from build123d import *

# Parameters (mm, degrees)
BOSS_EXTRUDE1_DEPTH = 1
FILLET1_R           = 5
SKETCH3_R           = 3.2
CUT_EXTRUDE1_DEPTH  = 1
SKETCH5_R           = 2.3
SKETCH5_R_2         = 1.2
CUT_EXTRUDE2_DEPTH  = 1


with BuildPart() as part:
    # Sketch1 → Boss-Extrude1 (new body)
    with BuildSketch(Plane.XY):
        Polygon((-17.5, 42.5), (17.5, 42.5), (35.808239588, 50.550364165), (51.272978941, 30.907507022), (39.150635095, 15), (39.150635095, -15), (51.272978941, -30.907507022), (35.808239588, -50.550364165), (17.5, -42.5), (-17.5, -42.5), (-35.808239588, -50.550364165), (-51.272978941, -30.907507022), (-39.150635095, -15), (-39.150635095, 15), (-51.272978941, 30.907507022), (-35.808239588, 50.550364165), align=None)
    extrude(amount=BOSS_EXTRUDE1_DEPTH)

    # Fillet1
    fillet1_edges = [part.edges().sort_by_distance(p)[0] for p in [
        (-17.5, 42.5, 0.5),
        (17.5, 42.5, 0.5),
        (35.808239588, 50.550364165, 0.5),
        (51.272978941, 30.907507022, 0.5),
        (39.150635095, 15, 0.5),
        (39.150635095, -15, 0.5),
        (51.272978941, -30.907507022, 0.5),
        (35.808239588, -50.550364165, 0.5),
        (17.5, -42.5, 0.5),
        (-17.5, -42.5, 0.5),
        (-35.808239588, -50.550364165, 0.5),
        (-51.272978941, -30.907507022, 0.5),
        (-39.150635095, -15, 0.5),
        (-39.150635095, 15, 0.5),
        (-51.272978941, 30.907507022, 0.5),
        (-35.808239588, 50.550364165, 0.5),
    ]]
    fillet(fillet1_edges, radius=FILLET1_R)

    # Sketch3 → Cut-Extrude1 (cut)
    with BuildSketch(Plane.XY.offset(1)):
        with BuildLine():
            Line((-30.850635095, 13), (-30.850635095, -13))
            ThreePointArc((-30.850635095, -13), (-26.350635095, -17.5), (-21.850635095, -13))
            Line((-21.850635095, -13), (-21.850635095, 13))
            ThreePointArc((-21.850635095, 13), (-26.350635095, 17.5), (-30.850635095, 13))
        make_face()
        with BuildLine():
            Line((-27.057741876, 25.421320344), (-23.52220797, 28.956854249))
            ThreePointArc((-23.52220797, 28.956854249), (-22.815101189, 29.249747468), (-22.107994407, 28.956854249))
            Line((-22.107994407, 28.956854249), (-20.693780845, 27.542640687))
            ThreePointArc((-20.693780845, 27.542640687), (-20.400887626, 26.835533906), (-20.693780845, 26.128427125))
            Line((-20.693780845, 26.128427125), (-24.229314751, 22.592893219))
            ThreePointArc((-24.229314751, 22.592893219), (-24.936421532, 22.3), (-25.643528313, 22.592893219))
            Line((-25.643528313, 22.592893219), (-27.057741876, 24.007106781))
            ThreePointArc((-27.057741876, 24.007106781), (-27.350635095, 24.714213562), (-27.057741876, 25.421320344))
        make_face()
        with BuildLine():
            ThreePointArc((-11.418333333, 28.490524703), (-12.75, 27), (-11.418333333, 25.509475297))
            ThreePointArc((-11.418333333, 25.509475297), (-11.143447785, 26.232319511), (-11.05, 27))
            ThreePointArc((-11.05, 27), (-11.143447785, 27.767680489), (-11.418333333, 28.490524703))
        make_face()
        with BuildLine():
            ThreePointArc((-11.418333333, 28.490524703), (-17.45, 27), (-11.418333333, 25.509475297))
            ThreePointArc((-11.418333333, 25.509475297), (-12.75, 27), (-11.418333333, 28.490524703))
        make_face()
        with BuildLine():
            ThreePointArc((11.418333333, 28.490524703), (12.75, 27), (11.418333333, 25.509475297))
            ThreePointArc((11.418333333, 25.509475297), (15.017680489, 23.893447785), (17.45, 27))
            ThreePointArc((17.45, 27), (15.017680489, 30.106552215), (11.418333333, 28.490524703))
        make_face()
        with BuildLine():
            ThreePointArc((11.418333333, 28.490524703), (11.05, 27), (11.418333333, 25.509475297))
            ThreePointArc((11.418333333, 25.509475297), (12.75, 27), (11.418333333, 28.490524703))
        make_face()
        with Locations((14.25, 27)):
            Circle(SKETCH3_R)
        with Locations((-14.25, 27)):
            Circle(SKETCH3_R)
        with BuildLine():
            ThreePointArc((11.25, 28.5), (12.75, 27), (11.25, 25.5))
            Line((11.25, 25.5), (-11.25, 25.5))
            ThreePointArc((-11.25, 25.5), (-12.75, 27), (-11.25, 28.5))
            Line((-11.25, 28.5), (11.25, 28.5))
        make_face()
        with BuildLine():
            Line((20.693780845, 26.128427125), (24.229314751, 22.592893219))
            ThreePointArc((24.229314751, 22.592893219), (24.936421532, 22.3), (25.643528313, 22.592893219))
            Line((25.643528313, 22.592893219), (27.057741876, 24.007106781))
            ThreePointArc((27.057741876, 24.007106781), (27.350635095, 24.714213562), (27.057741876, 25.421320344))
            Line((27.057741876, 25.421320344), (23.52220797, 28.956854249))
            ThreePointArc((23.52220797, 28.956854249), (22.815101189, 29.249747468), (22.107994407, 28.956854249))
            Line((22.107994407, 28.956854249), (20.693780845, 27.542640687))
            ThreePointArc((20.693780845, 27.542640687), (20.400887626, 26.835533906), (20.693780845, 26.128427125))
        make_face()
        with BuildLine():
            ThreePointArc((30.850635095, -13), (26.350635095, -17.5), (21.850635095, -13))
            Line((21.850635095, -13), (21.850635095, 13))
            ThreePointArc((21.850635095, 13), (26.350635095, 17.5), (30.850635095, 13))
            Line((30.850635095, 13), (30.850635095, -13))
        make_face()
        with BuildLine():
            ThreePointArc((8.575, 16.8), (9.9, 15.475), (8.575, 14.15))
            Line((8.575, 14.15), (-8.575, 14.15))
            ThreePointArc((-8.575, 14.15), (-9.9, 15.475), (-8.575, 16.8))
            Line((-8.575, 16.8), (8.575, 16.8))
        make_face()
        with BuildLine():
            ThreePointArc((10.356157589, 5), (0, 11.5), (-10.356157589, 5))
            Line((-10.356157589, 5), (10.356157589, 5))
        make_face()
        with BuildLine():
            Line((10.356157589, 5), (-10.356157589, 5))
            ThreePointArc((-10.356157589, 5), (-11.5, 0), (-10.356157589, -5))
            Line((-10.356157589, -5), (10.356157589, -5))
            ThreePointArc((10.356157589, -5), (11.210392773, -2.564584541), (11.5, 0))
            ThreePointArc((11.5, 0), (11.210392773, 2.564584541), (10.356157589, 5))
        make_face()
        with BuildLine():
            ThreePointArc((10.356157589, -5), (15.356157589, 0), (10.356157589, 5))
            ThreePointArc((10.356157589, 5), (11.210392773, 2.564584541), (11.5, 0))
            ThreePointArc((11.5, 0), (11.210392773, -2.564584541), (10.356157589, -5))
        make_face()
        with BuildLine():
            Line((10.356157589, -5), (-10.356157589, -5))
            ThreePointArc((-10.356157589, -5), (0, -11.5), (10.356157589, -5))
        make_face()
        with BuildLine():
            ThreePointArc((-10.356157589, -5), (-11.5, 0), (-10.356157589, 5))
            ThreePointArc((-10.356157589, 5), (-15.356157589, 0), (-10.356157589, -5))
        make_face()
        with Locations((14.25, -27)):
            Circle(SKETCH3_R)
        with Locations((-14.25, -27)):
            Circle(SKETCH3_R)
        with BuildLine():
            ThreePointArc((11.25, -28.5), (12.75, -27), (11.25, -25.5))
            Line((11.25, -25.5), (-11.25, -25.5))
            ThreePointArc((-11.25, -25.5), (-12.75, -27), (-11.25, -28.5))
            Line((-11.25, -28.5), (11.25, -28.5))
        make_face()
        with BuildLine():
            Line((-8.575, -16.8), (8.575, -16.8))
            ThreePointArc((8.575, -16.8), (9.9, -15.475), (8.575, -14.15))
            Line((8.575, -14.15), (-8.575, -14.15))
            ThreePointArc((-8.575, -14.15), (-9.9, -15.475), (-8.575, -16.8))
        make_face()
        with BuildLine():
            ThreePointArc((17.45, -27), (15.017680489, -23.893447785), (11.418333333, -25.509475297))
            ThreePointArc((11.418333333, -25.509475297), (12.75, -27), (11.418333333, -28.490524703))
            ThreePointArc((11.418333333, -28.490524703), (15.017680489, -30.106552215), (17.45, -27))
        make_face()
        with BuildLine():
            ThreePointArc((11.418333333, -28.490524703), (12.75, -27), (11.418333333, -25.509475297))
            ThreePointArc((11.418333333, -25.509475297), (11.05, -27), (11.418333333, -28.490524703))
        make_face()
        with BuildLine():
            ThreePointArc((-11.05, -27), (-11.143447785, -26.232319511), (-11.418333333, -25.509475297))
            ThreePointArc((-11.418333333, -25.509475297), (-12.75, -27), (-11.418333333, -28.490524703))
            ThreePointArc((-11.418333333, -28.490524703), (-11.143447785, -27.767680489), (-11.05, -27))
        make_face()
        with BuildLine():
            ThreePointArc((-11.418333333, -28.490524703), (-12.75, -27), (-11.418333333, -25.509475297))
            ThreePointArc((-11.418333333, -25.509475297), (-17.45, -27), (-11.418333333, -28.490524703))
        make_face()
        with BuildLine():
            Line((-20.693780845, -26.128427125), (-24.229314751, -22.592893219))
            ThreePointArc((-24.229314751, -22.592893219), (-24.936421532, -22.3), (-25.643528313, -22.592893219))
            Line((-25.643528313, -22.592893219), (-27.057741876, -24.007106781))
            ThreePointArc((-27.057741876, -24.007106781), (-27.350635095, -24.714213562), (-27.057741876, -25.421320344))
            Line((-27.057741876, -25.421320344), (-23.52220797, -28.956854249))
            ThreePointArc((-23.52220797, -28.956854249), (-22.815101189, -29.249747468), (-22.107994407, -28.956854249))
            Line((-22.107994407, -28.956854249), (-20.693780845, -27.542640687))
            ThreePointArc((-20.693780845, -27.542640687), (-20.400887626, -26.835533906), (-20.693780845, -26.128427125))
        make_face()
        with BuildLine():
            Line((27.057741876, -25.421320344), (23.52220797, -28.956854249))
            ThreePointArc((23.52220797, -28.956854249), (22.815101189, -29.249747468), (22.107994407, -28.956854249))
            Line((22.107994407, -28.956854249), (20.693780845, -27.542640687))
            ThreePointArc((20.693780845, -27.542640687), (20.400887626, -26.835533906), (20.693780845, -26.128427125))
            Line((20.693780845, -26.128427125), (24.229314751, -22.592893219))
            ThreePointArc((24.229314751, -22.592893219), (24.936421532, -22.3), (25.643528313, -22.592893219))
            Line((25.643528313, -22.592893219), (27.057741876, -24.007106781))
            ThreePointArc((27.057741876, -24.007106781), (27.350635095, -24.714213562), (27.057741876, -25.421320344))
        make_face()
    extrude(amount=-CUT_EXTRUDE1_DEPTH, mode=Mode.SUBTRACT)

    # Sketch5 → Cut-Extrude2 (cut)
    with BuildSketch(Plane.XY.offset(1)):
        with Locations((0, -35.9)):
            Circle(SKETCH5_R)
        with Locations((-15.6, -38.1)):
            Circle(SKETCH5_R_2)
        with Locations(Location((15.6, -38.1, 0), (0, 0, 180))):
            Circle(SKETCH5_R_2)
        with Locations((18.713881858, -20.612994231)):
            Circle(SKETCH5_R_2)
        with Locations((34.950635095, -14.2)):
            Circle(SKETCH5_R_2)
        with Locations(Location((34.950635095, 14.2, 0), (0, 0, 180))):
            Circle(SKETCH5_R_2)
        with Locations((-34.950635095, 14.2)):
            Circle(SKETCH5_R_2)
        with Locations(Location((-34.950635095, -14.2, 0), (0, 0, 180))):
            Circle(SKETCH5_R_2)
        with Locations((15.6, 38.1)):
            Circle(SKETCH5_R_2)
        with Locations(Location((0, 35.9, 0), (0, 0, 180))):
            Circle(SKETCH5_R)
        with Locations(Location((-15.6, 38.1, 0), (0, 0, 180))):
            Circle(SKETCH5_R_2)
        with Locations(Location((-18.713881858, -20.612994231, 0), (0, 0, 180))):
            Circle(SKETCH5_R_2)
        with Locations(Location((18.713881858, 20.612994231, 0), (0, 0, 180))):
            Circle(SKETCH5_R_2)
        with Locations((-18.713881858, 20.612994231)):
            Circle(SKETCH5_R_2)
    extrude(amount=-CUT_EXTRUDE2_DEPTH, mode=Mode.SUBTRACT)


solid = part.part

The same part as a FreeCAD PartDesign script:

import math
import FreeCAD as App
import Part
import Sketcher
from FreeCAD import Vector
Q = App.Units.Quantity


def edges_at(feature, points):
    """Names of the edges that pass closest to the given points."""
    edges = feature.Shape.Edges
    near = lambda p: min(range(len(edges)), key=lambda i: edges[i].distToShape(Part.Vertex(*p))[0])
    return sorted({f"Edge{near(p) + 1}" for p in points})

doc = App.newDocument("Part")
body = doc.addObject("PartDesign::Body", "Body")

# Sketch on XY plane
sketch1 = doc.addObject("Sketcher::SketchObject", "Sketch")
body.addObject(sketch1)
sketch1.AttachmentSupport = (doc.XY_Plane, [""])
sketch1.MapMode = "FlatFace"
sketch1.addGeometry(Part.LineSegment(Vector(17.5, 42.5, 0), Vector(-17.5, 42.5, 0)), False)
sketch1.addGeometry(Part.LineSegment(Vector(-17.5, 42.5, 0), Vector(-35.80824, 50.550364, 0)), False)
sketch1.addGeometry(Part.LineSegment(Vector(-35.80824, 50.550364, 0), Vector(-51.272979, 30.907507, 0)), False)
sketch1.addGeometry(Part.LineSegment(Vector(-51.272979, 30.907507, 0), Vector(-39.150635, 15, 0)), False)
sketch1.addGeometry(Part.LineSegment(Vector(-39.150635, 15, 0), Vector(-39.150635, -15, 0)), False)
sketch1.addGeometry(Part.LineSegment(Vector(-39.150635, -15, 0), Vector(-51.272979, -30.907507, 0)), False)
sketch1.addGeometry(Part.LineSegment(Vector(-51.272979, -30.907507, 0), Vector(-35.80824, -50.550364, 0)), False)
sketch1.addGeometry(Part.LineSegment(Vector(-35.80824, -50.550364, 0), Vector(-17.5, -42.5, 0)), False)
sketch1.addGeometry(Part.LineSegment(Vector(-17.5, -42.5, 0), Vector(17.5, -42.5, 0)), False)
sketch1.addGeometry(Part.LineSegment(Vector(17.5, -42.5, 0), Vector(35.80824, -50.550364, 0)), False)
sketch1.addGeometry(Part.LineSegment(Vector(35.80824, -50.550364, 0), Vector(51.272979, -30.907507, 0)), False)
sketch1.addGeometry(Part.LineSegment(Vector(51.272979, -30.907507, 0), Vector(39.150635, -15, 0)), False)
sketch1.addGeometry(Part.LineSegment(Vector(39.150635, -15, 0), Vector(39.150635, 15, 0)), False)
sketch1.addGeometry(Part.LineSegment(Vector(39.150635, 15, 0), Vector(51.272979, 30.907507, 0)), False)
sketch1.addGeometry(Part.LineSegment(Vector(51.272979, 30.907507, 0), Vector(35.80824, 50.550364, 0)), False)
sketch1.addGeometry(Part.LineSegment(Vector(35.80824, 50.550364, 0), Vector(17.5, 42.5, 0)), False)
sketch1.addConstraint(Sketcher.Constraint("Coincident", 0, 2, 1, 1))
sketch1.addConstraint(Sketcher.Constraint("Coincident", 1, 2, 2, 1))
sketch1.addConstraint(Sketcher.Constraint("Coincident", 2, 2, 3, 1))
sketch1.addConstraint(Sketcher.Constraint("Coincident", 3, 2, 4, 1))
sketch1.addConstraint(Sketcher.Constraint("Coincident", 4, 2, 5, 1))
sketch1.addConstraint(Sketcher.Constraint("Coincident", 5, 2, 6, 1))
sketch1.addConstraint(Sketcher.Constraint("Coincident", 6, 2, 7, 1))
sketch1.addConstraint(Sketcher.Constraint("Coincident", 7, 2, 8, 1))
sketch1.addConstraint(Sketcher.Constraint("Coincident", 8, 2, 9, 1))
sketch1.addConstraint(Sketcher.Constraint("Coincident", 9, 2, 10, 1))
sketch1.addConstraint(Sketcher.Constraint("Coincident", 10, 2, 11, 1))
sketch1.addConstraint(Sketcher.Constraint("Coincident", 11, 2, 12, 1))
sketch1.addConstraint(Sketcher.Constraint("Coincident", 12, 2, 13, 1))
sketch1.addConstraint(Sketcher.Constraint("Coincident", 13, 2, 14, 1))
sketch1.addConstraint(Sketcher.Constraint("Coincident", 14, 2, 15, 1))
sketch1.addConstraint(Sketcher.Constraint("Coincident", 15, 2, 0, 1))
sketch1.addConstraint(Sketcher.Constraint("Horizontal", 0))
sketch1.addConstraint(Sketcher.Constraint("Vertical", 4))
sketch1.addConstraint(Sketcher.Constraint("Horizontal", 8))
sketch1.addConstraint(Sketcher.Constraint("Vertical", 12))
sketch1.addConstraint(Sketcher.Constraint("Symmetric", 0, 2, 8, 2, -1, 1))
sketch1.addConstraint(Sketcher.Constraint("Symmetric", 1, 2, 9, 2, -1, 1))
sketch1.addConstraint(Sketcher.Constraint("Symmetric", 2, 2, 10, 2, -1, 1))
sketch1.addConstraint(Sketcher.Constraint("Symmetric", 3, 2, 11, 2, -1, 1))
sketch1.addConstraint(Sketcher.Constraint("Symmetric", 5, 2, 13, 2, -1, 1))
sketch1.addConstraint(Sketcher.Constraint("Symmetric", 6, 2, 14, 2, -1, 1))
sketch1.addConstraint(Sketcher.Constraint("Symmetric", 6, 2, 9, 2, -2))
sketch1.addConstraint(Sketcher.Constraint("Symmetric", 5, 2, 10, 2, -2))
sketch1.addConstraint(Sketcher.Constraint("Parallel", 5, 13))
sketch1.addConstraint(Sketcher.Constraint("Parallel", 7, 15))
sketch1.addConstraint(Sketcher.Constraint("Horizontal", 4, 2, 11, 2))
sketch1.addConstraint(Sketcher.Constraint("Vertical", 0, 2, 7, 2))
sketch1.addConstraint(Sketcher.Constraint("Equal", 1, 3))
sketch1.addConstraint(Sketcher.Constraint("DistanceX", 0, 2, 0, 1, Q("35 mm")))
sketch1.addConstraint(Sketcher.Constraint("DistanceY", 4, 2, 4, 1, Q("30 mm")))
sketch1.addConstraint(Sketcher.Constraint("Distance", 1, Q("20 mm")))
sketch1.addConstraint(Sketcher.Constraint("Distance", 2, Q("25 mm")))
sketch1.addConstraint(Sketcher.Constraint("DistanceY", -1, 1, 0, 2, Q("42.5 mm")))
sketch1.addConstraint(Sketcher.Constraint("DistanceX", 1, 2, -1, 1, Q("35.80824 mm")))
sketch1.addConstraint(Sketcher.Constraint("DistanceX", 2, 2, -1, 1, Q("51.272979 mm")))
pad1 = doc.addObject("PartDesign::Pad", "Pad")
body.addObject(pad1)
pad1.Profile = sketch1
pad1.Length = 1
doc.recompute()

fillet = doc.addObject("PartDesign::Fillet", "Fillet")
body.addObject(fillet)
fillet.Base = (pad1, edges_at(pad1, [
    (-17.5, 42.5, 0.5),
    (17.5, 42.5, 0.5),
    (35.808, 50.55, 0.5),
    (51.273, 30.908, 0.5),
    (39.151, 15, 0.5),
    (39.151, -15, 0.5),
    (51.273, -30.908, 0.5),
    (35.808, -50.55, 0.5),
    (17.5, -42.5, 0.5),
    (-17.5, -42.5, 0.5),
    (-35.808, -50.55, 0.5),
    (-51.273, -30.908, 0.5),
    (-39.151, -15, 0.5),
    (-39.151, 15, 0.5),
    (-51.273, 30.908, 0.5),
    (-35.808, 50.55, 0.5),
]))
fillet.Radius = 5

# Sketch on XY plane
sketch2 = doc.addObject("Sketcher::SketchObject", "Sketch001")
body.addObject(sketch2)
sketch2.AttachmentSupport = (doc.XY_Plane, [""])
sketch2.MapMode = "FlatFace"
sketch2.AttachmentOffset = App.Placement(Vector(0, 0, 1), App.Rotation())
sketch2.addGeometry(Part.LineSegment(Vector(-30.850635, 13, 0), Vector(-30.850635, -13, 0)), False)
sketch2.addGeometry(Part.ArcOfCircle(Part.Circle(Vector(-26.350635, -13, 0), Vector(0, 0, 1), 4.5), math.radians(180), math.radians(360)), False)
sketch2.addGeometry(Part.LineSegment(Vector(-21.850635, -13, 0), Vector(-21.850635, 13, 0)), False)
sketch2.addGeometry(Part.ArcOfCircle(Part.Circle(Vector(-26.350635, 13, 0), Vector(0, 0, 1), 4.5), math.radians(0), math.radians(180)), False)
sketch2.addGeometry(Part.LineSegment(Vector(-23.522208, 28.956854, 0), Vector(-27.057742, 25.42132, 0)), False)
sketch2.addGeometry(Part.ArcOfCircle(Part.Circle(Vector(-26.350635, 24.714214, 0), Vector(0, 0, 1), 1), math.radians(135), math.radians(225)), False)
sketch2.addGeometry(Part.LineSegment(Vector(-27.057742, 24.007107, 0), Vector(-25.643528, 22.592893, 0)), False)
sketch2.addGeometry(Part.ArcOfCircle(Part.Circle(Vector(-24.936422, 23.3, 0), Vector(0, 0, 1), 1), math.radians(-135), math.radians(-45)), False)
sketch2.addGeometry(Part.LineSegment(Vector(-24.229315, 22.592893, 0), Vector(-20.693781, 26.128427, 0)), False)
sketch2.addGeometry(Part.ArcOfCircle(Part.Circle(Vector(-21.400888, 26.835534, 0), Vector(0, 0, 1), 1), math.radians(-45), math.radians(45)), False)
sketch2.addGeometry(Part.LineSegment(Vector(-20.693781, 27.542641, 0), Vector(-22.107994, 28.956854, 0)), False)
sketch2.addGeometry(Part.ArcOfCircle(Part.Circle(Vector(-22.815101, 28.249747, 0), Vector(0, 0, 1), 1), math.radians(45), math.radians(135)), False)
sketch2.addGeometry(Part.ArcOfCircle(Part.Circle(Vector(-14.25, 27, 0), Vector(0, 0, 1), 3.2), math.radians(27.761295), math.radians(332.238705)), False)
sketch2.addGeometry(Part.ArcOfCircle(Part.Circle(Vector(-11.25, 27, 0), Vector(0, 0, 1), 1.5), math.radians(-96.443433), math.radians(-90)), False)
sketch2.addGeometry(Part.LineSegment(Vector(-11.25, 25.5, 0), Vector(11.25, 25.5, 0)), False)
sketch2.addGeometry(Part.ArcOfCircle(Part.Circle(Vector(11.25, 27, 0), Vector(0, 0, 1), 1.5), math.radians(-90), math.radians(-83.556567)), False)
sketch2.addGeometry(Part.ArcOfCircle(Part.Circle(Vector(14.25, 27, 0), Vector(0, 0, 1), 3.2), math.radians(-152.238705), math.radians(0)), False)
sketch2.addGeometry(Part.ArcOfCircle(Part.Circle(Vector(14.25, 27, 0), Vector(0, 0, 1), 3.2), math.radians(0), math.radians(152.238705)), False)
sketch2.addGeometry(Part.ArcOfCircle(Part.Circle(Vector(11.25, 27, 0), Vector(0, 0, 1), 1.5), math.radians(83.556567), math.radians(90)), False)
sketch2.addGeometry(Part.LineSegment(Vector(11.25, 28.5, 0), Vector(-11.25, 28.5, 0)), False)
sketch2.addGeometry(Part.ArcOfCircle(Part.Circle(Vector(-11.25, 27, 0), Vector(0, 0, 1), 1.5), math.radians(90), math.radians(96.443433)), False)
sketch2.addGeometry(Part.LineSegment(Vector(20.693781, 26.128427, 0), Vector(24.229315, 22.592893, 0)), False)
sketch2.addGeometry(Part.ArcOfCircle(Part.Circle(Vector(24.936422, 23.3, 0), Vector(0, 0, 1), 1), math.radians(-135), math.radians(-45)), False)
sketch2.addGeometry(Part.LineSegment(Vector(25.643528, 22.592893, 0), Vector(27.057742, 24.007107, 0)), False)
sketch2.addGeometry(Part.ArcOfCircle(Part.Circle(Vector(26.350635, 24.714214, 0), Vector(0, 0, 1), 1), math.radians(-45), math.radians(45)), False)
sketch2.addGeometry(Part.LineSegment(Vector(27.057742, 25.42132, 0), Vector(23.522208, 28.956854, 0)), False)
sketch2.addGeometry(Part.ArcOfCircle(Part.Circle(Vector(22.815101, 28.249747, 0), Vector(0, 0, 1), 1), math.radians(45), math.radians(135)), False)
sketch2.addGeometry(Part.LineSegment(Vector(22.107994, 28.956854, 0), Vector(20.693781, 27.542641, 0)), False)
sketch2.addGeometry(Part.ArcOfCircle(Part.Circle(Vector(21.400888, 26.835534, 0), Vector(0, 0, 1), 1), math.radians(135), math.radians(225)), False)
sketch2.addGeometry(Part.ArcOfCircle(Part.Circle(Vector(26.350635, -13, 0), Vector(0, 0, 1), 4.5), math.radians(180), math.radians(360)), False)
sketch2.addGeometry(Part.LineSegment(Vector(30.850635, -13, 0), Vector(30.850635, 13, 0)), False)
sketch2.addGeometry(Part.ArcOfCircle(Part.Circle(Vector(26.350635, 13, 0), Vector(0, 0, 1), 4.5), math.radians(0), math.radians(180)), False)
sketch2.addGeometry(Part.LineSegment(Vector(21.850635, 13, 0), Vector(21.850635, -13, 0)), False)
sketch2.addGeometry(Part.ArcOfCircle(Part.Circle(Vector(8.575, 15.475, 0), Vector(0, 0, 1), 1.325), math.radians(-90), math.radians(90)), False)
sketch2.addGeometry(Part.LineSegment(Vector(8.575, 16.8, 0), Vector(-8.575, 16.8, 0)), False)
sketch2.addGeometry(Part.ArcOfCircle(Part.Circle(Vector(-8.575, 15.475, 0), Vector(0, 0, 1), 1.325), math.radians(90), math.radians(270)), False)
sketch2.addGeometry(Part.LineSegment(Vector(-8.575, 14.15, 0), Vector(8.575, 14.15, 0)), False)
sketch2.addGeometry(Part.ArcOfCircle(Part.Circle(Vector(0, 0, 0), Vector(0, 0, 1), 11.5), math.radians(25.771462), math.radians(154.228538)), False)
sketch2.addGeometry(Part.ArcOfCircle(Part.Circle(Vector(-10.356158, 0, 0), Vector(0, 0, 1), 5), math.radians(90), math.radians(270)), False)
sketch2.addGeometry(Part.ArcOfCircle(Part.Circle(Vector(0, 0, 0), Vector(0, 0, 1), 11.5), math.radians(-154.228538), math.radians(-25.771462)), False)
sketch2.addGeometry(Part.ArcOfCircle(Part.Circle(Vector(10.356158, 0, 0), Vector(0, 0, 1), 5), math.radians(-90), math.radians(90)), False)
sketch2.addGeometry(Part.ArcOfCircle(Part.Circle(Vector(14.25, -27, 0), Vector(0, 0, 1), 3.2), math.radians(-152.238705), math.radians(152.238705)), False)
sketch2.addGeometry(Part.ArcOfCircle(Part.Circle(Vector(11.25, -27, 0), Vector(0, 0, 1), 1.5), math.radians(83.556567), math.radians(90)), False)
sketch2.addGeometry(Part.LineSegment(Vector(11.25, -25.5, 0), Vector(-11.25, -25.5, 0)), False)
sketch2.addGeometry(Part.ArcOfCircle(Part.Circle(Vector(-11.25, -27, 0), Vector(0, 0, 1), 1.5), math.radians(90), math.radians(96.443433)), False)
sketch2.addGeometry(Part.ArcOfCircle(Part.Circle(Vector(-14.25, -27, 0), Vector(0, 0, 1), 3.2), math.radians(27.761295), math.radians(332.238705)), False)
sketch2.addGeometry(Part.ArcOfCircle(Part.Circle(Vector(-11.25, -27, 0), Vector(0, 0, 1), 1.5), math.radians(-96.443433), math.radians(-90)), False)
sketch2.addGeometry(Part.LineSegment(Vector(-11.25, -28.5, 0), Vector(11.25, -28.5, 0)), False)
sketch2.addGeometry(Part.ArcOfCircle(Part.Circle(Vector(11.25, -27, 0), Vector(0, 0, 1), 1.5), math.radians(-90), math.radians(-83.556567)), False)
sketch2.addGeometry(Part.LineSegment(Vector(-8.575, -16.8, 0), Vector(8.575, -16.8, 0)), False)
sketch2.addGeometry(Part.ArcOfCircle(Part.Circle(Vector(8.575, -15.475, 0), Vector(0, 0, 1), 1.325), math.radians(-90), math.radians(90)), False)
sketch2.addGeometry(Part.LineSegment(Vector(8.575, -14.15, 0), Vector(-8.575, -14.15, 0)), False)
sketch2.addGeometry(Part.ArcOfCircle(Part.Circle(Vector(-8.575, -15.475, 0), Vector(0, 0, 1), 1.325), math.radians(90), math.radians(270)), False)
sketch2.addGeometry(Part.LineSegment(Vector(-20.693781, -26.128427, 0), Vector(-24.229315, -22.592893, 0)), False)
sketch2.addGeometry(Part.ArcOfCircle(Part.Circle(Vector(-24.936422, -23.3, 0), Vector(0, 0, 1), 1), math.radians(45), math.radians(135)), False)
sketch2.addGeometry(Part.LineSegment(Vector(-25.643528, -22.592893, 0), Vector(-27.057742, -24.007107, 0)), False)
sketch2.addGeometry(Part.ArcOfCircle(Part.Circle(Vector(-26.350635, -24.714214, 0), Vector(0, 0, 1), 1), math.radians(135), math.radians(225)), False)
sketch2.addGeometry(Part.LineSegment(Vector(-27.057742, -25.42132, 0), Vector(-23.522208, -28.956854, 0)), False)
sketch2.addGeometry(Part.ArcOfCircle(Part.Circle(Vector(-22.815101, -28.249747, 0), Vector(0, 0, 1), 1), math.radians(-135), math.radians(-45)), False)
sketch2.addGeometry(Part.LineSegment(Vector(-22.107994, -28.956854, 0), Vector(-20.693781, -27.542641, 0)), False)
sketch2.addGeometry(Part.ArcOfCircle(Part.Circle(Vector(-21.400888, -26.835534, 0), Vector(0, 0, 1), 1), math.radians(-45), math.radians(45)), False)
sketch2.addGeometry(Part.LineSegment(Vector(23.522208, -28.956854, 0), Vector(27.057742, -25.42132, 0)), False)
sketch2.addGeometry(Part.ArcOfCircle(Part.Circle(Vector(26.350635, -24.714214, 0), Vector(0, 0, 1), 1), math.radians(-45), math.radians(45)), False)
sketch2.addGeometry(Part.LineSegment(Vector(27.057742, -24.007107, 0), Vector(25.643528, -22.592893, 0)), False)
sketch2.addGeometry(Part.ArcOfCircle(Part.Circle(Vector(24.936422, -23.3, 0), Vector(0, 0, 1), 1), math.radians(45), math.radians(135)), False)
sketch2.addGeometry(Part.LineSegment(Vector(24.229315, -22.592893, 0), Vector(20.693781, -26.128427, 0)), False)
sketch2.addGeometry(Part.ArcOfCircle(Part.Circle(Vector(21.400888, -26.835534, 0), Vector(0, 0, 1), 1), math.radians(135), math.radians(225)), False)
sketch2.addGeometry(Part.LineSegment(Vector(20.693781, -27.542641, 0), Vector(22.107994, -28.956854, 0)), False)
sketch2.addGeometry(Part.ArcOfCircle(Part.Circle(Vector(22.815101, -28.249747, 0), Vector(0, 0, 1), 1), math.radians(-135), math.radians(-45)), False)
sketch2.addConstraint(Sketcher.Constraint("Tangent", 0, 2, 1, 1))
sketch2.addConstraint(Sketcher.Constraint("Tangent", 1, 2, 2, 1))
sketch2.addConstraint(Sketcher.Constraint("Tangent", 2, 2, 3, 1))
sketch2.addConstraint(Sketcher.Constraint("Tangent", 3, 2, 0, 1))
sketch2.addConstraint(Sketcher.Constraint("Tangent", 4, 2, 5, 1))
sketch2.addConstraint(Sketcher.Constraint("Tangent", 5, 2, 6, 1))
sketch2.addConstraint(Sketcher.Constraint("Tangent", 6, 2, 7, 1))
sketch2.addConstraint(Sketcher.Constraint("Tangent", 7, 2, 8, 1))
sketch2.addConstraint(Sketcher.Constraint("Tangent", 8, 2, 9, 1))
sketch2.addConstraint(Sketcher.Constraint("Tangent", 9, 2, 10, 1))
sketch2.addConstraint(Sketcher.Constraint("Tangent", 10, 2, 11, 1))
sketch2.addConstraint(Sketcher.Constraint("Tangent", 11, 2, 4, 1))
sketch2.addConstraint(Sketcher.Constraint("Coincident", 12, 2, 13, 1))
sketch2.addConstraint(Sketcher.Constraint("Tangent", 13, 2, 14, 1))
sketch2.addConstraint(Sketcher.Constraint("Tangent", 14, 2, 15, 1))
sketch2.addConstraint(Sketcher.Constraint("Coincident", 15, 2, 16, 1))
sketch2.addConstraint(Sketcher.Constraint("Tangent", 16, 2, 17, 1))
sketch2.addConstraint(Sketcher.Constraint("Coincident", 17, 2, 18, 1))
sketch2.addConstraint(Sketcher.Constraint("Tangent", 18, 2, 19, 1))
sketch2.addConstraint(Sketcher.Constraint("Tangent", 19, 2, 20, 1))
sketch2.addConstraint(Sketcher.Constraint("Coincident", 20, 2, 12, 1))
sketch2.addConstraint(Sketcher.Constraint("Tangent", 21, 2, 22, 1))
sketch2.addConstraint(Sketcher.Constraint("Tangent", 22, 2, 23, 1))
sketch2.addConstraint(Sketcher.Constraint("Tangent", 23, 2, 24, 1))
sketch2.addConstraint(Sketcher.Constraint("Tangent", 24, 2, 25, 1))
sketch2.addConstraint(Sketcher.Constraint("Tangent", 25, 2, 26, 1))
sketch2.addConstraint(Sketcher.Constraint("Tangent", 26, 2, 27, 1))
sketch2.addConstraint(Sketcher.Constraint("Tangent", 27, 2, 28, 1))
sketch2.addConstraint(Sketcher.Constraint("Tangent", 28, 2, 21, 1))
sketch2.addConstraint(Sketcher.Constraint("Tangent", 29, 2, 30, 1))
sketch2.addConstraint(Sketcher.Constraint("Tangent", 30, 2, 31, 1))
sketch2.addConstraint(Sketcher.Constraint("Tangent", 31, 2, 32, 1))
sketch2.addConstraint(Sketcher.Constraint("Tangent", 32, 2, 29, 1))
sketch2.addConstraint(Sketcher.Constraint("Tangent", 33, 2, 34, 1))
sketch2.addConstraint(Sketcher.Constraint("Tangent", 34, 2, 35, 1))
sketch2.addConstraint(Sketcher.Constraint("Tangent", 35, 2, 36, 1))
sketch2.addConstraint(Sketcher.Constraint("Tangent", 36, 2, 33, 1))
sketch2.addConstraint(Sketcher.Constraint("Coincident", 37, 2, 38, 1))
sketch2.addConstraint(Sketcher.Constraint("Coincident", 38, 2, 39, 1))
sketch2.addConstraint(Sketcher.Constraint("Coincident", 39, 2, 40, 1))
sketch2.addConstraint(Sketcher.Constraint("Coincident", 40, 2, 37, 1))
sketch2.addConstraint(Sketcher.Constraint("Coincident", 41, 2, 42, 1))
sketch2.addConstraint(Sketcher.Constraint("Tangent", 42, 2, 43, 1))
sketch2.addConstraint(Sketcher.Constraint("Tangent", 43, 2, 44, 1))
sketch2.addConstraint(Sketcher.Constraint("Coincident", 44, 2, 45, 1))
sketch2.addConstraint(Sketcher.Constraint("Coincident", 45, 2, 46, 1))
sketch2.addConstraint(Sketcher.Constraint("Tangent", 46, 2, 47, 1))
sketch2.addConstraint(Sketcher.Constraint("Tangent", 47, 2, 48, 1))
sketch2.addConstraint(Sketcher.Constraint("Coincident", 48, 2, 41, 1))
sketch2.addConstraint(Sketcher.Constraint("Tangent", 49, 2, 50, 1))
sketch2.addConstraint(Sketcher.Constraint("Tangent", 50, 2, 51, 1))
sketch2.addConstraint(Sketcher.Constraint("Tangent", 51, 2, 52, 1))
sketch2.addConstraint(Sketcher.Constraint("Tangent", 52, 2, 49, 1))
sketch2.addConstraint(Sketcher.Constraint("Tangent", 53, 2, 54, 1))
sketch2.addConstraint(Sketcher.Constraint("Tangent", 54, 2, 55, 1))
sketch2.addConstraint(Sketcher.Constraint("Tangent", 55, 2, 56, 1))
sketch2.addConstraint(Sketcher.Constraint("Tangent", 56, 2, 57, 1))
sketch2.addConstraint(Sketcher.Constraint("Tangent", 57, 2, 58, 1))
sketch2.addConstraint(Sketcher.Constraint("Tangent", 58, 2, 59, 1))
sketch2.addConstraint(Sketcher.Constraint("Tangent", 59, 2, 60, 1))
sketch2.addConstraint(Sketcher.Constraint("Tangent", 60, 2, 53, 1))
sketch2.addConstraint(Sketcher.Constraint("Tangent", 61, 2, 62, 1))
sketch2.addConstraint(Sketcher.Constraint("Tangent", 62, 2, 63, 1))
sketch2.addConstraint(Sketcher.Constraint("Tangent", 63, 2, 64, 1))
sketch2.addConstraint(Sketcher.Constraint("Tangent", 64, 2, 65, 1))
sketch2.addConstraint(Sketcher.Constraint("Tangent", 65, 2, 66, 1))
sketch2.addConstraint(Sketcher.Constraint("Tangent", 66, 2, 67, 1))
sketch2.addConstraint(Sketcher.Constraint("Tangent", 67, 2, 68, 1))
sketch2.addConstraint(Sketcher.Constraint("Tangent", 68, 2, 61, 1))
sketch2.addConstraint(Sketcher.Constraint("Vertical", 0))
sketch2.addConstraint(Sketcher.Constraint("Vertical", 2))
sketch2.addConstraint(Sketcher.Constraint("Horizontal", 14))
sketch2.addConstraint(Sketcher.Constraint("Horizontal", 19))
sketch2.addConstraint(Sketcher.Constraint("Vertical", 30))
sketch2.addConstraint(Sketcher.Constraint("Vertical", 32))
sketch2.addConstraint(Sketcher.Constraint("Horizontal", 34))
sketch2.addConstraint(Sketcher.Constraint("Horizontal", 36))
sketch2.addConstraint(Sketcher.Constraint("Horizontal", 43))
sketch2.addConstraint(Sketcher.Constraint("Horizontal", 47))
sketch2.addConstraint(Sketcher.Constraint("Horizontal", 49))
sketch2.addConstraint(Sketcher.Constraint("Horizontal", 51))
sketch2.addConstraint(Sketcher.Constraint("Coincident", 37, 3, -1, 1))
sketch2.addConstraint(Sketcher.Constraint("Coincident", 39, 3, -1, 1))
sketch2.addConstraint(Sketcher.Constraint("Coincident", 18, 3, 15, 3))
sketch2.addConstraint(Sketcher.Constraint("Coincident", 20, 3, 13, 3))
sketch2.addConstraint(Sketcher.Constraint("Coincident", 46, 3, 44, 3))
sketch2.addConstraint(Sketcher.Constraint("Coincident", 48, 3, 42, 3))
sketch2.addConstraint(Sketcher.Constraint("Equal", 5, 7))
sketch2.addConstraint(Sketcher.Constraint("Equal", 7, 9))
sketch2.addConstraint(Sketcher.Constraint("Equal", 9, 11))
sketch2.addConstraint(Sketcher.Constraint("Equal", 13, 15))
sketch2.addConstraint(Sketcher.Constraint("Equal", 12, 16))
sketch2.addConstraint(Sketcher.Constraint("Equal", 16, 17))
sketch2.addConstraint(Sketcher.Constraint("Equal", 15, 18))
sketch2.addConstraint(Sketcher.Constraint("Equal", 11, 22))
sketch2.addConstraint(Sketcher.Constraint("Equal", 22, 24))
sketch2.addConstraint(Sketcher.Constraint("Equal", 24, 26))
sketch2.addConstraint(Sketcher.Constraint("Equal", 26, 28))
sketch2.addConstraint(Sketcher.Constraint("Equal", 3, 29))
sketch2.addConstraint(Sketcher.Constraint("Equal", 37, 39))
sketch2.addConstraint(Sketcher.Constraint("Equal", 38, 40))
sketch2.addConstraint(Sketcher.Constraint("Equal", 17, 41))
sketch2.addConstraint(Sketcher.Constraint("Equal", 20, 42))
sketch2.addConstraint(Sketcher.Constraint("Equal", 42, 44))
sketch2.addConstraint(Sketcher.Constraint("Equal", 41, 45))
sketch2.addConstraint(Sketcher.Constraint("Equal", 44, 46))
sketch2.addConstraint(Sketcher.Constraint("Equal", 35, 50))
sketch2.addConstraint(Sketcher.Constraint("Equal", 28, 54))
sketch2.addConstraint(Sketcher.Constraint("Equal", 54, 56))
sketch2.addConstraint(Sketcher.Constraint("Equal", 56, 58))
sketch2.addConstraint(Sketcher.Constraint("Equal", 58, 60))
sketch2.addConstraint(Sketcher.Constraint("Equal", 60, 62))
sketch2.addConstraint(Sketcher.Constraint("Equal", 62, 64))
sketch2.addConstraint(Sketcher.Constraint("Equal", 64, 66))
sketch2.addConstraint(Sketcher.Constraint("Equal", 66, 68))
sketch2.addConstraint(Sketcher.Constraint("Symmetric", 3, 3, 29, 3, -1, 1))
sketch2.addConstraint(Sketcher.Constraint("Symmetric", 38, 3, 40, 3, -1, 1))
sketch2.addConstraint(Sketcher.Constraint("Symmetric", 12, 3, 41, 3, -1, 1))
sketch2.addConstraint(Sketcher.Constraint("Symmetric", 13, 3, 42, 3, -1, 1))
sketch2.addConstraint(Sketcher.Constraint("Symmetric", 16, 3, 45, 3, -1, 1))
sketch2.addConstraint(Sketcher.Constraint("Symmetric", 35, 3, 50, 3, -1, 1))
sketch2.addConstraint(Sketcher.Constraint("Symmetric", 22, 3, 54, 3, -1, 1))
sketch2.addConstraint(Sketcher.Constraint("Symmetric", 24, 3, 56, 3, -1, 1))
sketch2.addConstraint(Sketcher.Constraint("Symmetric", 26, 3, 58, 3, -1, 1))
sketch2.addConstraint(Sketcher.Constraint("Symmetric", 28, 3, 60, 3, -1, 1))
sketch2.addConstraint(Sketcher.Constraint("Symmetric", 5, 3, 62, 3, -1, 1))
sketch2.addConstraint(Sketcher.Constraint("Symmetric", 7, 3, 64, 3, -1, 1))
sketch2.addConstraint(Sketcher.Constraint("Symmetric", 9, 3, 66, 3, -1, 1))
sketch2.addConstraint(Sketcher.Constraint("Symmetric", 11, 3, 68, 3, -1, 1))
sketch2.addConstraint(Sketcher.Constraint("Symmetric", 12, 3, 16, 3, -2))
sketch2.addConstraint(Sketcher.Constraint("Symmetric", 7, 3, 22, 3, -2))
sketch2.addConstraint(Sketcher.Constraint("Symmetric", 5, 3, 24, 3, -2))
sketch2.addConstraint(Sketcher.Constraint("Symmetric", 11, 3, 26, 3, -2))
sketch2.addConstraint(Sketcher.Constraint("Symmetric", 9, 3, 28, 3, -2))
sketch2.addConstraint(Sketcher.Constraint("PointOnObject", 38, 3, -1))
sketch2.addConstraint(Sketcher.Constraint("Perpendicular", 4, 6))
sketch2.addConstraint(Sketcher.Constraint("Perpendicular", 6, 8))
sketch2.addConstraint(Sketcher.Constraint("Perpendicular", 8, 10))
sketch2.addConstraint(Sketcher.Constraint("Parallel", 10, 21))
sketch2.addConstraint(Sketcher.Constraint("Horizontal", 12, 3, 13, 3))
sketch2.addConstraint(Sketcher.Constraint("Horizontal", 1, 3, 29, 3))
sketch2.addConstraint(Sketcher.Constraint("Horizontal", 3, 3, 31, 3))
sketch2.addConstraint(Sketcher.Constraint("Horizontal", 12, 2, 15, 2))
sketch2.addConstraint(Sketcher.Constraint("Horizontal", 20, 3, 16, 2))
sketch2.addConstraint(Sketcher.Constraint("Horizontal", 41, 2, 44, 2))
sketch2.addConstraint(Sketcher.Constraint("Vertical", 3, 3, 5, 3))
sketch2.addConstraint(Sketcher.Constraint("Vertical", 33, 3, 50, 3))
sketch2.addConstraint(Sketcher.Constraint("Vertical", 35, 3, 52, 3))
sketch2.addConstraint(Sketcher.Constraint("Vertical", 38, 3, 37, 2))
sketch2.addConstraint(Sketcher.Constraint("Radius", 5, Q("1 mm")))
sketch2.addConstraint(Sketcher.Constraint("Radius", 38, Q("5 mm")))
sketch2.addConstraint(Sketcher.Constraint("Radius", 1, Q("4.5 mm")))
sketch2.addConstraint(Sketcher.Constraint("Radius", 12, Q("3.2 mm")))
sketch2.addConstraint(Sketcher.Constraint("Radius", 13, Q("1.5 mm")))
sketch2.addConstraint(Sketcher.Constraint("Radius", 37, Q("11.5 mm")))
sketch2.addConstraint(Sketcher.Constraint("DistanceY", 0, 2, 0, 1, Q("26 mm")))
sketch2.addConstraint(Sketcher.Constraint("Distance", 4, Q("5 mm")))
sketch2.addConstraint(Sketcher.Constraint("Distance", 6, Q("2 mm")))
sketch2.addConstraint(Sketcher.Constraint("DistanceX", 14, 1, 14, 2, Q("22.5 mm")))
sketch2.addConstraint(Sketcher.Constraint("DistanceY", -1, 1, 12, 3, Q("27 mm")))
sketch2.addConstraint(Sketcher.Constraint("Radius", 33, Q("1.325 mm")))
sketch2.addConstraint(Sketcher.Constraint("DistanceX", 34, 2, 34, 1, Q("17.15 mm")))
sketch2.addConstraint(Sketcher.Constraint("DistanceY", -1, 1, 7, 3, Q("23.3 mm")))
sketch2.addConstraint(Sketcher.Constraint("DistanceY", -1, 1, 33, 2, Q("16.8 mm")))
sketch2.addConstraint(Sketcher.Constraint("DistanceX", 12, 3, -1, 1, Q("14.25 mm")))
sketch2.addConstraint(Sketcher.Constraint("DistanceX", 11, 3, -1, 1, Q("22.815101 mm")))
pocket1 = doc.addObject("PartDesign::Pocket", "Pocket")
body.addObject(pocket1)
pocket1.Profile = sketch2
pocket1.Length = 1

# Sketch on XY plane
sketch3 = doc.addObject("Sketcher::SketchObject", "Sketch002")
body.addObject(sketch3)
sketch3.AttachmentSupport = (doc.XY_Plane, [""])
sketch3.MapMode = "FlatFace"
sketch3.AttachmentOffset = App.Placement(Vector(0, 0, 1), App.Rotation())
sketch3.addGeometry(Part.Circle(Vector(0, -35.9, 0), Vector(0, 0, 1), 2.3), False)
sketch3.addGeometry(Part.Circle(Vector(-15.6, -38.1, 0), Vector(0, 0, 1), 1.2), False)
sketch3.addGeometry(Part.Circle(Vector(15.6, -38.1, 0), Vector(0, 0, 1), 1.2), False)
sketch3.addGeometry(Part.Circle(Vector(18.713882, -20.612994, 0), Vector(0, 0, 1), 1.2), False)
sketch3.addGeometry(Part.Circle(Vector(34.950635, -14.2, 0), Vector(0, 0, 1), 1.2), False)
sketch3.addGeometry(Part.Circle(Vector(34.950635, 14.2, 0), Vector(0, 0, 1), 1.2), False)
sketch3.addGeometry(Part.Circle(Vector(-34.950635, 14.2, 0), Vector(0, 0, 1), 1.2), False)
sketch3.addGeometry(Part.Circle(Vector(-34.950635, -14.2, 0), Vector(0, 0, 1), 1.2), False)
sketch3.addGeometry(Part.Circle(Vector(15.6, 38.1, 0), Vector(0, 0, 1), 1.2), False)
sketch3.addGeometry(Part.Circle(Vector(0, 35.9, 0), Vector(0, 0, 1), 2.3), False)
sketch3.addGeometry(Part.Circle(Vector(-15.6, 38.1, 0), Vector(0, 0, 1), 1.2), False)
sketch3.addGeometry(Part.Circle(Vector(-18.713882, -20.612994, 0), Vector(0, 0, 1), 1.2), False)
sketch3.addGeometry(Part.Circle(Vector(18.713882, 20.612994, 0), Vector(0, 0, 1), 1.2), False)
sketch3.addGeometry(Part.Circle(Vector(-18.713882, 20.612994, 0), Vector(0, 0, 1), 1.2), False)
sketch3.addConstraint(Sketcher.Constraint("Equal", 1, 2))
sketch3.addConstraint(Sketcher.Constraint("Equal", 2, 3))
sketch3.addConstraint(Sketcher.Constraint("Equal", 3, 4))
sketch3.addConstraint(Sketcher.Constraint("Equal", 4, 5))
sketch3.addConstraint(Sketcher.Constraint("Equal", 5, 6))
sketch3.addConstraint(Sketcher.Constraint("Equal", 6, 7))
sketch3.addConstraint(Sketcher.Constraint("Equal", 7, 8))
sketch3.addConstraint(Sketcher.Constraint("Equal", 0, 9))
sketch3.addConstraint(Sketcher.Constraint("Equal", 8, 10))
sketch3.addConstraint(Sketcher.Constraint("Equal", 10, 11))
sketch3.addConstraint(Sketcher.Constraint("Equal", 11, 12))
sketch3.addConstraint(Sketcher.Constraint("Equal", 12, 13))
sketch3.addConstraint(Sketcher.Constraint("Symmetric", 4, 3, 6, 3, -1, 1))
sketch3.addConstraint(Sketcher.Constraint("Symmetric", 5, 3, 7, 3, -1, 1))
sketch3.addConstraint(Sketcher.Constraint("Symmetric", 1, 3, 8, 3, -1, 1))
sketch3.addConstraint(Sketcher.Constraint("Symmetric", 0, 3, 9, 3, -1, 1))
sketch3.addConstraint(Sketcher.Constraint("Symmetric", 2, 3, 10, 3, -1, 1))
sketch3.addConstraint(Sketcher.Constraint("Symmetric", 11, 3, 12, 3, -1, 1))
sketch3.addConstraint(Sketcher.Constraint("Symmetric", 3, 3, 13, 3, -1, 1))
sketch3.addConstraint(Sketcher.Constraint("Symmetric", 1, 3, 2, 3, -2))
sketch3.addConstraint(Sketcher.Constraint("Symmetric", 5, 3, 6, 3, -2))
sketch3.addConstraint(Sketcher.Constraint("Symmetric", 3, 3, 11, 3, -2))
sketch3.addConstraint(Sketcher.Constraint("PointOnObject", 0, 3, -2))
sketch3.addConstraint(Sketcher.Constraint("Diameter", 0, Q("4.6 mm")))
sketch3.addConstraint(Sketcher.Constraint("Diameter", 1, Q("2.4 mm")))
sketch3.addConstraint(Sketcher.Constraint("DistanceY", 0, 3, -1, 1, Q("35.9 mm")))
sketch3.addConstraint(Sketcher.Constraint("DistanceX", 1, 3, -1, 1, Q("15.6 mm")))
sketch3.addConstraint(Sketcher.Constraint("DistanceY", 1, 3, -1, 1, Q("38.1 mm")))
sketch3.addConstraint(Sketcher.Constraint("DistanceY", 4, 3, -1, 1, Q("14.2 mm")))
sketch3.addConstraint(Sketcher.Constraint("DistanceX", -1, 1, 3, 3, Q("18.713882 mm")))
sketch3.addConstraint(Sketcher.Constraint("DistanceX", 6, 3, 5, 3, Q("69.90127 mm")))
sketch3.addConstraint(Sketcher.Constraint("DistanceY", 3, 3, -1, 1, Q("20.612994 mm")))
pocket2 = doc.addObject("PartDesign::Pocket", "Pocket001")
body.addObject(pocket2)
pocket2.Profile = sketch3
pocket2.Length = 1

doc.recompute()
